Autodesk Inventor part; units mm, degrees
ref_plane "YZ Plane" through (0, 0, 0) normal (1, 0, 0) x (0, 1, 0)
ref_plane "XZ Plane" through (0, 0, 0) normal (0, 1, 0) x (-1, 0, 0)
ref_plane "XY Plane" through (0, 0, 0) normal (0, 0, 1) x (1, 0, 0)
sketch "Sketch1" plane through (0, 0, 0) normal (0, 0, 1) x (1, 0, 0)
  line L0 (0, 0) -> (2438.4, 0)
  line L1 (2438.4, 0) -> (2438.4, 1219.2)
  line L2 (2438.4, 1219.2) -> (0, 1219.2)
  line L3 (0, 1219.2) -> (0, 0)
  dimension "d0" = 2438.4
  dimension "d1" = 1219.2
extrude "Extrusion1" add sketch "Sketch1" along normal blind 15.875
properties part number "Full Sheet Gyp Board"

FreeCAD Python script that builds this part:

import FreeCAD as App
import Part
import Sketcher
from FreeCAD import Vector
Q = App.Units.Quantity

doc = App.newDocument("Part")
body = doc.addObject("PartDesign::Body", "Body")

# Sketch on XY plane
sketch1 = doc.addObject("Sketcher::SketchObject", "Sketch")
body.addObject(sketch1)
sketch1.AttachmentSupport = (doc.XY_Plane, [""])
sketch1.MapMode = "FlatFace"
sketch1.addGeometry(Part.LineSegment(Vector(0, 1219, 0), Vector(0, 0, 0)), False)
sketch1.addGeometry(Part.LineSegment(Vector(0, 0, 0), Vector(2438, 0, 0)), False)
sketch1.addGeometry(Part.LineSegment(Vector(2438, 0, 0), Vector(2438, 1219, 0)), False)
sketch1.addGeometry(Part.LineSegment(Vector(2438, 1219, 0), Vector(0, 1219, 0)), False)
sketch1.addConstraint(Sketcher.Constraint("Coincident", 0, 2, 1, 1))
sketch1.addConstraint(Sketcher.Constraint("Coincident", 1, 2, 2, 1))
sketch1.addConstraint(Sketcher.Constraint("Coincident", 2, 2, 3, 1))
sketch1.addConstraint(Sketcher.Constraint("Coincident", 3, 2, 0, 1))
sketch1.addConstraint(Sketcher.Constraint("Vertical", 0))
sketch1.addConstraint(Sketcher.Constraint("Horizontal", 1))
sketch1.addConstraint(Sketcher.Constraint("Vertical", 2))
sketch1.addConstraint(Sketcher.Constraint("Horizontal", 3))
sketch1.addConstraint(Sketcher.Constraint("Coincident", 0, 2, -1, 1))
sketch1.addConstraint(Sketcher.Constraint("DistanceX", 1, 1, 1, 2, Q("96 in")))
sketch1.addConstraint(Sketcher.Constraint("DistanceY", 0, 2, 0, 1, Q("48 in")))
pad1 = doc.addObject("PartDesign::Pad", "Pad")
body.addObject(pad1)
pad1.Profile = sketch1
pad1.Length = Q("0.625 in")

doc.recompute()
